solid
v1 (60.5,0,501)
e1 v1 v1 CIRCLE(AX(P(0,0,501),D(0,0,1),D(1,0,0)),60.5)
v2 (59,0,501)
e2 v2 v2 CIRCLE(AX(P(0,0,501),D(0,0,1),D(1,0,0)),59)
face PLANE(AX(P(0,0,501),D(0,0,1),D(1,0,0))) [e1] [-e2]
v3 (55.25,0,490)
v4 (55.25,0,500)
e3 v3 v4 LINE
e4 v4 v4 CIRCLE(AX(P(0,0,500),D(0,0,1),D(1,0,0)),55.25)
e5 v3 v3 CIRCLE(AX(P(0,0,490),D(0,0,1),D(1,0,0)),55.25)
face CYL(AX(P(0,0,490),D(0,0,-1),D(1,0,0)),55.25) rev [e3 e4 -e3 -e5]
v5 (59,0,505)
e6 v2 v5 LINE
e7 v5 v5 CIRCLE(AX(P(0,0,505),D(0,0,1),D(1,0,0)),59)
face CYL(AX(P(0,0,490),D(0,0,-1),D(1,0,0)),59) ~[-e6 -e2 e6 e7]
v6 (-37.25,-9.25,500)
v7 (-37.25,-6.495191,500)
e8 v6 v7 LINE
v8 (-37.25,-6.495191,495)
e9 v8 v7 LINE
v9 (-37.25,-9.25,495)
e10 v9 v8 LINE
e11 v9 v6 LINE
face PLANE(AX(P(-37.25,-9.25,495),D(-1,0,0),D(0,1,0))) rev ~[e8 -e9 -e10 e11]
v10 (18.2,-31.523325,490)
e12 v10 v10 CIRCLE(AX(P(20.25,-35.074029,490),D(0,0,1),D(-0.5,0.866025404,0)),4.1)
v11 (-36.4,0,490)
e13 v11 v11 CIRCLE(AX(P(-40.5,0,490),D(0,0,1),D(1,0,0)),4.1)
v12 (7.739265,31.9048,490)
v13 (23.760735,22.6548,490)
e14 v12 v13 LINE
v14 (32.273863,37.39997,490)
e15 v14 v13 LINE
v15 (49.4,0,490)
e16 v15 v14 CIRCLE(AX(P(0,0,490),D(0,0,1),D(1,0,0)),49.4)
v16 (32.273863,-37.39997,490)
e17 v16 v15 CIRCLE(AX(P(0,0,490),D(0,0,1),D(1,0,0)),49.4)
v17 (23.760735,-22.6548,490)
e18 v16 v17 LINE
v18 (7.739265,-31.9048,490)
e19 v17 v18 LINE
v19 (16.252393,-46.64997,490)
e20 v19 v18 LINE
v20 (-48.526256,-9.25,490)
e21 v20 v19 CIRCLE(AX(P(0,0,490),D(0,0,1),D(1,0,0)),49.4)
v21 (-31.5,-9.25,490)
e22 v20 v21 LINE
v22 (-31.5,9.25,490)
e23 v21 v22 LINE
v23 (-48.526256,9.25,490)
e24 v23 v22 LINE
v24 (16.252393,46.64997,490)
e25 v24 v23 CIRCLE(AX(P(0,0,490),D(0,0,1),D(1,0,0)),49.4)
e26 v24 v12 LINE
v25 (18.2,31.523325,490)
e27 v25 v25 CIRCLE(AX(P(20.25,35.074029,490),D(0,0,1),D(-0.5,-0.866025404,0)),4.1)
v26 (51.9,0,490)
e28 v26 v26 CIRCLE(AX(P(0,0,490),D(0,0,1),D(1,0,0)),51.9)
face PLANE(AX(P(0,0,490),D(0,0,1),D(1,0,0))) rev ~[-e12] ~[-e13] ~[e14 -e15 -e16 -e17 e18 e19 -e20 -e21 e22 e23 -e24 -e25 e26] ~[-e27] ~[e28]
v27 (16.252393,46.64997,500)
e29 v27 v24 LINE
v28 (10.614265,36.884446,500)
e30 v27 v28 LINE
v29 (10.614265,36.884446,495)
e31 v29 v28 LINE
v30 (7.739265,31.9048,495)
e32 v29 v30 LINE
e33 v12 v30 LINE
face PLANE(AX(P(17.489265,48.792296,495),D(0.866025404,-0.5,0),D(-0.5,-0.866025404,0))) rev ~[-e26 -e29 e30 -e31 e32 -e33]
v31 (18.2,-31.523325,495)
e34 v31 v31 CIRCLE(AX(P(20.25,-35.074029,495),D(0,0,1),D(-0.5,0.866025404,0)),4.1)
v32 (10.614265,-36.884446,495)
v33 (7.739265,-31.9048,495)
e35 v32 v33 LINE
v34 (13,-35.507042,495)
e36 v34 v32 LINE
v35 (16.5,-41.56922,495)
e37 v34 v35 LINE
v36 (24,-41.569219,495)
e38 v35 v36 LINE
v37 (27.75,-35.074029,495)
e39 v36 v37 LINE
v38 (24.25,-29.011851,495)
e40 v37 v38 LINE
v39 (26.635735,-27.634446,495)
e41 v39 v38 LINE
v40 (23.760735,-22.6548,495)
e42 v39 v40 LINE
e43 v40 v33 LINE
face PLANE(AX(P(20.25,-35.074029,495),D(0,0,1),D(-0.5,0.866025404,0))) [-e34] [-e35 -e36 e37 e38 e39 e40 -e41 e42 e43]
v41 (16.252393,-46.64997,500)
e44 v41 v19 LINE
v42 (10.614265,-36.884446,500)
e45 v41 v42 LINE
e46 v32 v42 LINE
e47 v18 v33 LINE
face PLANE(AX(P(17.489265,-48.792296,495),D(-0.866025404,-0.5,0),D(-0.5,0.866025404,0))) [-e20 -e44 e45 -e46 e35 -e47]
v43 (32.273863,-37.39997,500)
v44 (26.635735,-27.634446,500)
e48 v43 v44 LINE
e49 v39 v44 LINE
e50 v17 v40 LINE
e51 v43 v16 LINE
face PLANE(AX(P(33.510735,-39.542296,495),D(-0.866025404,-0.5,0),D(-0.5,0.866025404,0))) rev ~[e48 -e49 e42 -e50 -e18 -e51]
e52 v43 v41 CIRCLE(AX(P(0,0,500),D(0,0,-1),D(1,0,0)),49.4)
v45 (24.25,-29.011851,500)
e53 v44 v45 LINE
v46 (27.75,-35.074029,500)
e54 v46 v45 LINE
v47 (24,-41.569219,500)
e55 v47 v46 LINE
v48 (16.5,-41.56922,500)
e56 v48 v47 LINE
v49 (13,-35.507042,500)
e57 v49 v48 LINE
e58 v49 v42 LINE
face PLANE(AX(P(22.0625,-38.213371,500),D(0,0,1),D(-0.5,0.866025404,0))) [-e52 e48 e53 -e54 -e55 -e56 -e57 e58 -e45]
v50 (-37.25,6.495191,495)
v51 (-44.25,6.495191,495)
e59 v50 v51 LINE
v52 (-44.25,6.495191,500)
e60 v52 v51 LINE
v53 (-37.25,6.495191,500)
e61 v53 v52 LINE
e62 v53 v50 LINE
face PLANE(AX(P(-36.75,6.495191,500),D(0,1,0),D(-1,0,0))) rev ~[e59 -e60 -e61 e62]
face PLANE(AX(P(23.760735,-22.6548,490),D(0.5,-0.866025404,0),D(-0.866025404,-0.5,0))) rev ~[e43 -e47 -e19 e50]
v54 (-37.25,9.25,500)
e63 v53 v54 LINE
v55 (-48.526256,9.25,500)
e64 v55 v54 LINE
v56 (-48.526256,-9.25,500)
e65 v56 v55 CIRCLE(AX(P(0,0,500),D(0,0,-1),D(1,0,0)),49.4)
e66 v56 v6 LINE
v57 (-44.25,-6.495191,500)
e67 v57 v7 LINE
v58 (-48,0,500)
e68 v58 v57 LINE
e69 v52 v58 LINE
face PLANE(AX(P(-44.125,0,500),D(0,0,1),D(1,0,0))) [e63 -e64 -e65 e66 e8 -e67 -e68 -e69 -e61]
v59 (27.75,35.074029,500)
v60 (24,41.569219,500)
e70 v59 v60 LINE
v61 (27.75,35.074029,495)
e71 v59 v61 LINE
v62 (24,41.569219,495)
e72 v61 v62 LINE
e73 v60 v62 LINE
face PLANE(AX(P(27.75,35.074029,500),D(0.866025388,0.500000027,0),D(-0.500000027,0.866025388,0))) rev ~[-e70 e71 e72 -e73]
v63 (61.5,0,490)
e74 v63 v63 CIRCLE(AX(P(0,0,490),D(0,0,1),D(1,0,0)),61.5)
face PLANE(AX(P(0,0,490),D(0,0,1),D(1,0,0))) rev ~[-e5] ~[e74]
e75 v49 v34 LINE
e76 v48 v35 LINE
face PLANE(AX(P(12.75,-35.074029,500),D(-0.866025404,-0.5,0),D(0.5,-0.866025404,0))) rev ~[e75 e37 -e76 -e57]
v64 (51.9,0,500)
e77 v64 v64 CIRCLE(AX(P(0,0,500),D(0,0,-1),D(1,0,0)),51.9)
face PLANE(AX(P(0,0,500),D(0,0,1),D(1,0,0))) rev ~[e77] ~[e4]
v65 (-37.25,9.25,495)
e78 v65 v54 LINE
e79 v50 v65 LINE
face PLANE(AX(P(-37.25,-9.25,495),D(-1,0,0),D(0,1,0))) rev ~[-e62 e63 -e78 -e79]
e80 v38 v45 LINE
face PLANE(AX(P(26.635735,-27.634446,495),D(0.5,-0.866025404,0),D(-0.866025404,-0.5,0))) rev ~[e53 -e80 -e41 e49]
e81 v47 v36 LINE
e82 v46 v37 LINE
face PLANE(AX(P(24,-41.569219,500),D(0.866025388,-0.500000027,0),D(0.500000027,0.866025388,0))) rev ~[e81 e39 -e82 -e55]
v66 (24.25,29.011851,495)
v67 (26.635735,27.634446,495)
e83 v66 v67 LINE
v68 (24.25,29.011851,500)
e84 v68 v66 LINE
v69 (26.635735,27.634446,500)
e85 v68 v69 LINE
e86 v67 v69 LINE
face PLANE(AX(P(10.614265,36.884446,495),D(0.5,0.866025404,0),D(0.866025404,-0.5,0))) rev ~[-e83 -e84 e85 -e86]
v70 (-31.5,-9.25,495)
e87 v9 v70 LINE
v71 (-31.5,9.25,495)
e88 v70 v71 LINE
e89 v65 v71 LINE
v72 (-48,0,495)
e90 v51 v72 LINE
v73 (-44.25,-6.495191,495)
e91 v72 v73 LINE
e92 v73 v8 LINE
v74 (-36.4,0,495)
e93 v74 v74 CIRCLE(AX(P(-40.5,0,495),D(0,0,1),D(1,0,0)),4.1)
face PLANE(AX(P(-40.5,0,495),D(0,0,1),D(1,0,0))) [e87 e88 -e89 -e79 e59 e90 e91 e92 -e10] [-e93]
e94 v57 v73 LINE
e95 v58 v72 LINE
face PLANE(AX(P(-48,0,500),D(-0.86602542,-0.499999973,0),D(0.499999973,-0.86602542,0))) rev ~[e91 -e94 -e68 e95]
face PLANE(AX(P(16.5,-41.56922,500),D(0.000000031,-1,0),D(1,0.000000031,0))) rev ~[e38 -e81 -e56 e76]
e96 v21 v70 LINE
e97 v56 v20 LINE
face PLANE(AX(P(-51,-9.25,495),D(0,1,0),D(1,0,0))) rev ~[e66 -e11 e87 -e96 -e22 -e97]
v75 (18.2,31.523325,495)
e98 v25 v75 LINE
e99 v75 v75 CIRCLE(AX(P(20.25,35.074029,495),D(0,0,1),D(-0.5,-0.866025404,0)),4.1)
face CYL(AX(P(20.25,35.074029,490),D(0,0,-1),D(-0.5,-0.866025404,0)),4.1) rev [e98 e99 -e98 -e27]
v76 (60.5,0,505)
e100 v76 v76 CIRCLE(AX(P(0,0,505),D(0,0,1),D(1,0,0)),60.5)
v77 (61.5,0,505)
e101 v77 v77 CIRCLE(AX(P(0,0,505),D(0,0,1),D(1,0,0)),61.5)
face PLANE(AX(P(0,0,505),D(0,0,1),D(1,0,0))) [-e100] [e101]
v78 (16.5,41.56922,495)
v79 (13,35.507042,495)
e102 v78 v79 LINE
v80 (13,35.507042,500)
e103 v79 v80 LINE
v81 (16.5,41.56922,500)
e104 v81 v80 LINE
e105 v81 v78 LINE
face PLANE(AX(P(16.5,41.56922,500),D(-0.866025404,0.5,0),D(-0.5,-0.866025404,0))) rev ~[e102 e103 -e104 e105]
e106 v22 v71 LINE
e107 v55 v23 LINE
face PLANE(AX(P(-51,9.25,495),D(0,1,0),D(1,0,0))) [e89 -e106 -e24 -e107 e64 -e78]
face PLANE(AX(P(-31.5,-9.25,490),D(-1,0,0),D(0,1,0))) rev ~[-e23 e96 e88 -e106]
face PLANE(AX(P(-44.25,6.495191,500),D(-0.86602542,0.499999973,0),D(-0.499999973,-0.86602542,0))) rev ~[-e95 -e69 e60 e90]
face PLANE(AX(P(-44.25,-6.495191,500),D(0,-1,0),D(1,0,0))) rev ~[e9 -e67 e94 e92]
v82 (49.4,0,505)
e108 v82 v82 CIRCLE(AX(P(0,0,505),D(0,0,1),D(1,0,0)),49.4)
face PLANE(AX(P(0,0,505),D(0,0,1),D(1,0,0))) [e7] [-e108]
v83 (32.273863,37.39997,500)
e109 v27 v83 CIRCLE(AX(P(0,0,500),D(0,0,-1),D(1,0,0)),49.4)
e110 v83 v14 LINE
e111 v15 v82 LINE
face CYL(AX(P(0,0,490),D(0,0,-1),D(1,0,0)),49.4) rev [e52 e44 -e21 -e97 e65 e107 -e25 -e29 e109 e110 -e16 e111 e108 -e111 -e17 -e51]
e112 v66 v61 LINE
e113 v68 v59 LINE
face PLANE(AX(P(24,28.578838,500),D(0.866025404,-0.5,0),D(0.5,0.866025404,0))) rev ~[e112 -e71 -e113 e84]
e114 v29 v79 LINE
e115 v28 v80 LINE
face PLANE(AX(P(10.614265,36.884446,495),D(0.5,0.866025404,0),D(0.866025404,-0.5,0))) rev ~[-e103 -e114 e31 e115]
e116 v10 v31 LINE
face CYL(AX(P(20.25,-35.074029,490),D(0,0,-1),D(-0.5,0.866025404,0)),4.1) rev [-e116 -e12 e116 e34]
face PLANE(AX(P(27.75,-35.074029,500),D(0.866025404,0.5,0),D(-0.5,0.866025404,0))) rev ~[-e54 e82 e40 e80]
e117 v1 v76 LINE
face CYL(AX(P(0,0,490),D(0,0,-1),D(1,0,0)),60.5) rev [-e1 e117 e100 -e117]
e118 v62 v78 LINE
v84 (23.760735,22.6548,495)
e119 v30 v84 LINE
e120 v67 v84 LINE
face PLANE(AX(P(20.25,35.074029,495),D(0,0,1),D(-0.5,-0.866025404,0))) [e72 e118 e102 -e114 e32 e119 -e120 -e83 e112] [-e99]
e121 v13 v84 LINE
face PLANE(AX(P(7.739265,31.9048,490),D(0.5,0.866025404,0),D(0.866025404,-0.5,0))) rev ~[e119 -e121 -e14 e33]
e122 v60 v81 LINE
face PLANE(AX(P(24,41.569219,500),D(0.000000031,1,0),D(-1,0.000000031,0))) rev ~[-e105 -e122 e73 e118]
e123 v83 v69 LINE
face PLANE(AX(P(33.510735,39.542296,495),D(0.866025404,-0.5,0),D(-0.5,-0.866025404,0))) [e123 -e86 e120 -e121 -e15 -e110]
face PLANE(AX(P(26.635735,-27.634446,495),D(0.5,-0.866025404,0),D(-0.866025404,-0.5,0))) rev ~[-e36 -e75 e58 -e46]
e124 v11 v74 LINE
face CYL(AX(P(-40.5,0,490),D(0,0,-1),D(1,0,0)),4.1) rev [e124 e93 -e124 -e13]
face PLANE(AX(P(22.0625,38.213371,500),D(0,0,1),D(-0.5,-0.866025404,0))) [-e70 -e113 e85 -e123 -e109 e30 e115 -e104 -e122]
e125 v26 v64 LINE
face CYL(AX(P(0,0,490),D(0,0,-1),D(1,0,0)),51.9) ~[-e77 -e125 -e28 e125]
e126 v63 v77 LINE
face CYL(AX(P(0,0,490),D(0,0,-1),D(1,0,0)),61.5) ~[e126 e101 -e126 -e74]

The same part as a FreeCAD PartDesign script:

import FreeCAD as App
import Part
import Sketcher
Q = App.Units.Quantity

doc = App.newDocument("Part")
params = doc.addObject("Spreadsheet::Sheet", "Params")
for row, (alias, value) in enumerate([
    ("sketch1_width", "7.5 mm"),
    ("pad1_length", "5 mm"),
    ("sketch2_height", "18.5 mm"),
    ("sketch2_width", "13.75 mm"),
    ("pad2_length", "5 mm"),
    ("sketch3_diameter", "8.2 mm"),
    ("pad3_length", "5 mm"),
    ("sketch4_width", "18 mm"),
    ("sketch4_height", "18.5 mm"),
    ("pad4_length", "5 mm"),
    ("sketch5_diameter", "121 mm"),
    ("sketch5_diameter2", "118 mm"),
    ("pad5_length", "11 mm"),
    ("sketch6_diameter", "123 mm"),
    ("sketch6_diameter2", "121 mm"),
    ("pad6_length", "15 mm"),
    ("sketch7_diameter", "110.5 mm"),
    ("sketch7_diameter2", "103.5 mm"),
    ("pad7_length", "5 mm"),
    ("sketch8_diameter", "103.8 mm"),
    ("sketch8_diameter2", "98.8 mm"),
    ("pad8_length", "15 mm"),
    ("sketch9_diameter", "118 mm"),
    ("sketch9_diameter2", "110.5 mm"),
    ("pad9_length", "15 mm"),
], start=1):
    params.set(f"A{row}", alias)
    params.set(f"B{row}", "=" + value)
    params.setAlias(f"B{row}", alias)

body = doc.addObject("PartDesign::Body", "Body")

# Sketch on XY plane
sketch1 = doc.addObject("Sketcher::SketchObject", "Sketch")
body.addObject(sketch1)
sketch1.AttachmentSupport = (doc.XY_Plane, [""])
sketch1.MapMode = "FlatFace"
sketch1.AttachmentOffset = App.Placement(App.Vector(0, 0, 500), App.Rotation())
sketch1.addGeometry([
    Part.LineSegment(App.Vector(-33, 0, 0), App.Vector(-37, 6, 0)),  # 0
    Part.LineSegment(App.Vector(-37, 6, 0), App.Vector(-44, 6, 0)),  # 1
    Part.LineSegment(App.Vector(-44, 6, 0), App.Vector(-48, 0, 0)),  # 2
    Part.LineSegment(App.Vector(-48, 0, 0), App.Vector(-44, -6, 0)),  # 3
    Part.LineSegment(App.Vector(-44, -6, 0), App.Vector(-37, -6, 0)),  # 4
    Part.LineSegment(App.Vector(-37, -6, 0), App.Vector(-33, 0, 0)),  # 5
], False)
sketch1.addConstraint([
    Sketcher.Constraint("Coincident", 0, 2, 1, 1),
    Sketcher.Constraint("Coincident", 1, 2, 2, 1),
    Sketcher.Constraint("Coincident", 2, 2, 3, 1),
    Sketcher.Constraint("Coincident", 3, 2, 4, 1),
    Sketcher.Constraint("Coincident", 4, 2, 5, 1),
    Sketcher.Constraint("Coincident", 5, 2, 0, 1),
    Sketcher.Constraint("Horizontal", 1),
    Sketcher.Constraint("Horizontal", 4),
    Sketcher.Constraint("Symmetric", 1, 2, 3, 2, -1),
    Sketcher.Constraint("PointOnObject", 2, 2, -1),
    Sketcher.Constraint("PointOnObject", 5, 2, -1),
    Sketcher.Constraint("Parallel", 0, 3),
    Sketcher.Constraint("Parallel", 2, 5),
    Sketcher.Constraint("Angle", 0, Q("119.999998 deg")),
    Sketcher.Constraint("DistanceX", 1, 2, 1, 1, 7.5),
    Sketcher.Constraint("DistanceX", 2, 2, -1, 1, 48.0),
    Sketcher.Constraint("DistanceX", 5, 2, -1, 1, 33.0),
])
sketch1.setExpression("Constraints[14]", "Params.sketch1_width")
pad1 = doc.addObject("PartDesign::Pad", "Pad")
body.addObject(pad1)
pad1.Profile = sketch1
pad1.setExpression("Length", "Params.pad1_length")
pad1.Reversed = True
body2 = doc.addObject("PartDesign::Body", "Body001")

# Sketch on XY plane
sketch2 = doc.addObject("Sketcher::SketchObject", "Sketch001")
body2.addObject(sketch2)
sketch2.AttachmentSupport = (doc.getObject("XY_Plane001"), [""])
sketch2.MapMode = "FlatFace"
sketch2.AttachmentOffset = App.Placement(App.Vector(0, 0, 495), App.Rotation())
sketch2.addGeometry([
    Part.LineSegment(App.Vector(-51, 9, 0), App.Vector(-51, -9, 0)),
    Part.LineSegment(App.Vector(-51, -9, 0), App.Vector(-37, -9, 0)),
    Part.LineSegment(App.Vector(-37, -9, 0), App.Vector(-37, 9, 0)),
    Part.LineSegment(App.Vector(-37, 9, 0), App.Vector(-51, 9, 0)),
], False)
sketch2.addConstraint([
    Sketcher.Constraint("Coincident", 0, 2, 1, 1),
    Sketcher.Constraint("Coincident", 1, 2, 2, 1),
    Sketcher.Constraint("Coincident", 2, 2, 3, 1),
    Sketcher.Constraint("Coincident", 3, 2, 0, 1),
    Sketcher.Constraint("Vertical", 0),
    Sketcher.Constraint("Horizontal", 1),
    Sketcher.Constraint("Vertical", 2),
    Sketcher.Constraint("Horizontal", 3),
    Sketcher.Constraint("DistanceY", 0, 2, 0, 1, 18.5),
    Sketcher.Constraint("DistanceX", 0, 2, -1, 1, 51.0),
    Sketcher.Constraint("DistanceX", 1, 1, 1, 2, 13.75),
    Sketcher.Constraint("DistanceY", 0, 2, -1, 1, 9.25),
])
sketch2.setExpression("Constraints[8]", "Params.sketch2_height")
sketch2.setExpression("Constraints[10]", "Params.sketch2_width")
pad2 = doc.addObject("PartDesign::Pad", "Pad001")
body2.addObject(pad2)
pad2.Profile = sketch2
pad2.setExpression("Length", "Params.pad2_length")
doc.recompute()

boolean = doc.addObject("PartDesign::Boolean", "Boolean")
body2.addObject(boolean)
boolean.Type = "Cut"
boolean.addObjects([body])
body3 = doc.addObject("PartDesign::Body", "Body002")

# Sketch on XY plane
sketch3 = doc.addObject("Sketcher::SketchObject", "Sketch002")
body3.addObject(sketch3)
sketch3.AttachmentSupport = (doc.getObject("XY_Plane002"), [""])
sketch3.MapMode = "FlatFace"
sketch3.AttachmentOffset = App.Placement(App.Vector(0, 0, 490), App.Rotation())
sketch3.addGeometry(Part.Circle(App.Vector(-40.5, 0, 0), App.Vector(0, 0, 1), 4.1), False)
sketch3.addConstraint([
    Sketcher.Constraint("PointOnObject", 0, 3, -1),
    Sketcher.Constraint("Diameter", 0, 8.2),
    Sketcher.Constraint("DistanceX", 0, 3, -1, 1, 40.5),
])
sketch3.setExpression("Constraints[1]", "Params.sketch3_diameter")
pad3 = doc.addObject("PartDesign::Pad", "Pad002")
body3.addObject(pad3)
pad3.Profile = sketch3
pad3.setExpression("Length", "Params.pad3_length")
body4 = doc.addObject("PartDesign::Body", "Body003")

# Sketch on XY plane
sketch4 = doc.addObject("Sketcher::SketchObject", "Sketch003")
body4.addObject(sketch4)
sketch4.AttachmentSupport = (doc.getObject("XY_Plane003"), [""])
sketch4.MapMode = "FlatFace"
sketch4.AttachmentOffset = App.Placement(App.Vector(0, 0, 490), App.Rotation())
sketch4.addGeometry([
    Part.LineSegment(App.Vector(-50, 9, 0), App.Vector(-50, -9, 0)),
    Part.LineSegment(App.Vector(-50, -9, 0), App.Vector(-32, -9, 0)),
    Part.LineSegment(App.Vector(-32, -9, 0), App.Vector(-32, 9, 0)),
    Part.LineSegment(App.Vector(-32, 9, 0), App.Vector(-50, 9, 0)),
], False)
sketch4.addConstraint([
    Sketcher.Constraint("Coincident", 0, 2, 1, 1),
    Sketcher.Constraint("Coincident", 1, 2, 2, 1),
    Sketcher.Constraint("Coincident", 2, 2, 3, 1),
    Sketcher.Constraint("Coincident", 3, 2, 0, 1),
    Sketcher.Constraint("Vertical", 0),
    Sketcher.Constraint("Horizontal", 1),
    Sketcher.Constraint("Vertical", 2),
    Sketcher.Constraint("Horizontal", 3),
    Sketcher.Constraint("DistanceX", 1, 1, 1, 2, 18.0),
    Sketcher.Constraint("DistanceY", 0, 2, 0, 1, 18.5),
    Sketcher.Constraint("DistanceX", 0, 2, -1, 1, 49.5),
    Sketcher.Constraint("DistanceY", 0, 2, -1, 1, 9.25),
])
sketch4.setExpression("Constraints[8]", "Params.sketch4_width")
sketch4.setExpression("Constraints[9]", "Params.sketch4_height")
pad4 = doc.addObject("PartDesign::Pad", "Pad003")
body4.addObject(pad4)
pad4.Profile = sketch4
pad4.setExpression("Length", "Params.pad4_length")
doc.recompute()

boolean2 = doc.addObject("PartDesign::Boolean", "Boolean001")
body4.addObject(boolean2)
boolean2.Type = "Cut"
boolean2.addObjects([body3])
doc.recompute()

boolean3 = doc.addObject("PartDesign::Boolean", "Boolean002")
body4.addObject(boolean3)
boolean3.Type = "Fuse"
boolean3.addObjects([body2])
body5 = doc.addObject("PartDesign::Body", "Body004")
body5.AllowCompound = True
doc.recompute()

body5.BaseFeature = body4
doc.recompute()

body6 = doc.addObject("PartDesign::Body", "Body005")
body6.BaseFeature = body4
body6.Placement = App.Placement(App.Vector(0, 0, 0), App.Rotation(App.Vector(0, 0, 1), 120))
boolean4 = doc.addObject("PartDesign::Boolean", "Boolean003")
body5.addObject(boolean4)
boolean4.Type = "Fuse"
boolean4.addObjects([body6])
doc.recompute()

body4.Placement = App.Placement(App.Vector(0, 0, 0), App.Rotation(App.Vector(0, 0, 1), 240))
boolean5 = doc.addObject("PartDesign::Boolean", "Boolean004")
body5.addObject(boolean5)
boolean5.Type = "Fuse"
boolean5.addObjects([body4])
body7 = doc.addObject("PartDesign::Body", "Body006")

# Sketch on XY plane
sketch5 = doc.addObject("Sketcher::SketchObject", "Sketch004")
body7.addObject(sketch5)
sketch5.AttachmentSupport = (doc.getObject("XY_Plane006"), [""])
sketch5.MapMode = "FlatFace"
sketch5.addGeometry([
    Part.Circle(App.Vector(0, 0, 0), App.Vector(0, 0, 1), 60),
    Part.Circle(App.Vector(0, 0, 0), App.Vector(0, 0, 1), 59),
], False)
sketch5.addConstraint([
    Sketcher.Constraint("Coincident", 0, 3, -1, 1),
    Sketcher.Constraint("Coincident", 1, 3, -1, 1),
    Sketcher.Constraint("Diameter", 0, 121.0),
    Sketcher.Constraint("Diameter", 1, 118.0),
])
sketch5.setExpression("Constraints[2]", "Params.sketch5_diameter")
sketch5.setExpression("Constraints[3]", "Params.sketch5_diameter2")
pad5 = doc.addObject("PartDesign::Pad", "Pad004")
body7.addObject(pad5)
pad5.Profile = sketch5
pad5.setExpression("Length", "Params.pad5_length")
body8 = doc.addObject("PartDesign::Body", "Body007")

# Sketch on XY plane
sketch6 = doc.addObject("Sketcher::SketchObject", "Sketch005")
body8.addObject(sketch6)
sketch6.AttachmentSupport = (doc.getObject("XY_Plane007"), [""])
sketch6.MapMode = "FlatFace"
sketch6.addGeometry([
    Part.Circle(App.Vector(0, 0, 0), App.Vector(0, 0, 1), 62),
    Part.Circle(App.Vector(0, 0, 0), App.Vector(0, 0, 1), 60),
], False)
sketch6.addConstraint([
    Sketcher.Constraint("Coincident", 0, 3, -1, 1),
    Sketcher.Constraint("Coincident", 1, 3, -1, 1),
    Sketcher.Constraint("Diameter", 0, 123.0),
    Sketcher.Constraint("Diameter", 1, 121.0),
])
sketch6.setExpression("Constraints[2]", "Params.sketch6_diameter")
sketch6.setExpression("Constraints[3]", "Params.sketch6_diameter2")
pad6 = doc.addObject("PartDesign::Pad", "Pad005")
body8.addObject(pad6)
pad6.Profile = sketch6
pad6.setExpression("Length", "Params.pad6_length")
body9 = doc.addObject("PartDesign::Body", "Body008")

# Sketch on XY plane
sketch7 = doc.addObject("Sketcher::SketchObject", "Sketch006")
body9.addObject(sketch7)
sketch7.AttachmentSupport = (doc.getObject("XY_Plane008"), [""])
sketch7.MapMode = "FlatFace"
sketch7.AttachmentOffset = App.Placement(App.Vector(0, 0, 10), App.Rotation())
sketch7.addGeometry([
    Part.Circle(App.Vector(0, 0, 0), App.Vector(0, 0, 1), 55),
    Part.Circle(App.Vector(0, 0, 0), App.Vector(0, 0, 1), 52),
], False)
sketch7.addConstraint([
    Sketcher.Constraint("Coincident", 0, 3, -1, 1),
    Sketcher.Constraint("Coincident", 1, 3, -1, 1),
    Sketcher.Constraint("Diameter", 0, 110.5),
    Sketcher.Constraint("Diameter", 1, 103.5),
])
sketch7.setExpression("Constraints[2]", "Params.sketch7_diameter")
sketch7.setExpression("Constraints[3]", "Params.sketch7_diameter2")
pad7 = doc.addObject("PartDesign::Pad", "Pad006")
body9.addObject(pad7)
pad7.Profile = sketch7
pad7.setExpression("Length", "Params.pad7_length")
body10 = doc.addObject("PartDesign::Body", "Body009")

# Sketch on XY plane
sketch8 = doc.addObject("Sketcher::SketchObject", "Sketch007")
body10.addObject(sketch8)
sketch8.AttachmentSupport = (doc.getObject("XY_Plane009"), [""])
sketch8.MapMode = "FlatFace"
sketch8.addGeometry([
    Part.Circle(App.Vector(0, 0, 0), App.Vector(0, 0, 1), 52),
    Part.Circle(App.Vector(0, 0, 0), App.Vector(0, 0, 1), 49),
], False)
sketch8.addConstraint([
    Sketcher.Constraint("Coincident", 0, 3, -1, 1),
    Sketcher.Constraint("Coincident", 1, 3, -1, 1),
    Sketcher.Constraint("Diameter", 0, 103.8),
    Sketcher.Constraint("Diameter", 1, 98.8),
])
sketch8.setExpression("Constraints[2]", "Params.sketch8_diameter")
sketch8.setExpression("Constraints[3]", "Params.sketch8_diameter2")
pad8 = doc.addObject("PartDesign::Pad", "Pad007")
body10.addObject(pad8)
pad8.Profile = sketch8
pad8.setExpression("Length", "Params.pad8_length")
body11 = doc.addObject("PartDesign::Body", "Body010")

# Sketch on XY plane
sketch9 = doc.addObject("Sketcher::SketchObject", "Sketch008")
body11.addObject(sketch9)
sketch9.AttachmentSupport = (doc.getObject("XY_Plane010"), [""])
sketch9.MapMode = "FlatFace"
sketch9.addGeometry([
    Part.Circle(App.Vector(0, 0, 0), App.Vector(0, 0, 1), 59),
    Part.Circle(App.Vector(0, 0, 0), App.Vector(0, 0, 1), 55),
], False)
sketch9.addConstraint([
    Sketcher.Constraint("Coincident", 0, 3, -1, 1),
    Sketcher.Constraint("Coincident", 1, 3, -1, 1),
    Sketcher.Constraint("Diameter", 0, 118.0),
    Sketcher.Constraint("Diameter", 1, 110.5),
])
sketch9.setExpression("Constraints[2]", "Params.sketch9_diameter")
sketch9.setExpression("Constraints[3]", "Params.sketch9_diameter2")
pad9 = doc.addObject("PartDesign::Pad", "Pad008")
body11.addObject(pad9)
pad9.Profile = sketch9
pad9.setExpression("Length", "Params.pad9_length")
doc.recompute()

boolean6 = doc.addObject("PartDesign::Boolean", "Boolean005")
body11.addObject(boolean6)
boolean6.Type = "Fuse"
boolean6.addObjects([body7])
doc.recompute()

boolean7 = doc.addObject("PartDesign::Boolean", "Boolean006")
body11.addObject(boolean7)
boolean7.Type = "Fuse"
boolean7.addObjects([body8])
doc.recompute()

boolean8 = doc.addObject("PartDesign::Boolean", "Boolean007")
body11.addObject(boolean8)
boolean8.Type = "Fuse"
boolean8.addObjects([body9])
doc.recompute()

boolean9 = doc.addObject("PartDesign::Boolean", "Boolean008")
body11.addObject(boolean9)
boolean9.Type = "Fuse"
boolean9.addObjects([body10])
body12 = doc.addObject("PartDesign::Body", "Body011")
doc.recompute()

body11.Placement = App.Placement(App.Vector(0, 0, 490), App.Rotation(App.Vector(0, 0, 1), 0))
boolean10 = doc.addObject("PartDesign::Boolean", "Boolean009")
body12.addObject(boolean10)
boolean10.Type = "Fuse"
boolean10.addObjects([body11])
doc.recompute()

boolean11 = doc.addObject("PartDesign::Boolean", "Boolean010")
body12.addObject(boolean11)
boolean11.Type = "Fuse"
boolean11.addObjects([body5])

doc.recompute()
